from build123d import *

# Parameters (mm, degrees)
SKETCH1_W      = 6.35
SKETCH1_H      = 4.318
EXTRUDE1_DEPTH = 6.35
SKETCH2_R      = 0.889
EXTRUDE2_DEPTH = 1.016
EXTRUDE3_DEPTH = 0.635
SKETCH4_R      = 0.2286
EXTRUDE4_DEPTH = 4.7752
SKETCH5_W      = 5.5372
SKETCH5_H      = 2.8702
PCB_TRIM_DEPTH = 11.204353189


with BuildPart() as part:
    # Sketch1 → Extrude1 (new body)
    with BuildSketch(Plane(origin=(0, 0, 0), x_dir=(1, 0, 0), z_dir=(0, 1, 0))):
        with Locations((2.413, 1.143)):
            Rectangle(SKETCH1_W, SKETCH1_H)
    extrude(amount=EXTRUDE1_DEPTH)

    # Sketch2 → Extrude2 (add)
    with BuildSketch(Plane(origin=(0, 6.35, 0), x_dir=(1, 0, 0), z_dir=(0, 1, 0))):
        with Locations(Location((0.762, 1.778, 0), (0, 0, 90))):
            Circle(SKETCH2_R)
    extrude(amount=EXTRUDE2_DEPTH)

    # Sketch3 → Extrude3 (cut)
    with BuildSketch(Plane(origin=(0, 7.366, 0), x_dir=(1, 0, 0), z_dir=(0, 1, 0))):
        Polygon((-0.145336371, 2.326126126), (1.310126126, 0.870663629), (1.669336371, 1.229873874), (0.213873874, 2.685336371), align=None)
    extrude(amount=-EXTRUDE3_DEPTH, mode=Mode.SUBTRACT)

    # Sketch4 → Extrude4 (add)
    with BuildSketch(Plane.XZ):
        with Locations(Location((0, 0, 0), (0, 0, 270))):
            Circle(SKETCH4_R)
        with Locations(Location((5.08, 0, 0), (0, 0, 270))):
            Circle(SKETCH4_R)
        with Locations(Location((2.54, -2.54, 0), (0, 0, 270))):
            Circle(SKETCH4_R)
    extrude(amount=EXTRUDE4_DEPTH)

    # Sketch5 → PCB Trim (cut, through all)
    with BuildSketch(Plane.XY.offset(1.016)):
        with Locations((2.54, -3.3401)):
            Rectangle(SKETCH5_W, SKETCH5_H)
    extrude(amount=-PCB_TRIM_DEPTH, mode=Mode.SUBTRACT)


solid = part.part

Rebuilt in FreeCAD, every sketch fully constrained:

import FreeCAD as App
import Part
import Sketcher
from FreeCAD import Vector
Q = App.Units.Quantity


def add_polygon(sketch, points):
    """Adds a closed chain of lines whose ends are joined by coincident constraints."""
    first, n = sketch.GeometryCount, len(points)
    for a, b in zip(points, points[1:] + points[:1]):
        sketch.addGeometry(Part.LineSegment(App.Vector(*a, 0), App.Vector(*b, 0)), False)
    for i in range(n):
        sketch.addConstraint(Sketcher.Constraint("Coincident", first + i, 2, first + (i + 1) % n, 1))

doc = App.newDocument("Part")
body = doc.addObject("PartDesign::Body", "Body")

sketch1 = body.newObject("Sketcher::SketchObject", "Sketch")
sketch1.AttachmentSupport = (doc.getObject("XZ_Plane"), [""])
sketch1.MapMode = "FlatFace"
add_polygon(sketch1, [(-0.762, -3.302), (-0.762, 1.016), (5.588, 1.016), (5.588, -3.302)])
sketch1.addConstraint([
    Sketcher.Constraint("Vertical", 0),
    Sketcher.Constraint("Horizontal", 1),
    Sketcher.Constraint("Vertical", 2),
    Sketcher.Constraint("Horizontal", 3),
    Sketcher.Constraint("DistanceX", 1, 1, 1, 2, Q("0.25 in")),
    Sketcher.Constraint("DistanceY", 0, 1, 0, 2, Q("0.17 in")),
    Sketcher.Constraint("DistanceX", 0, 2, -1, 1, Q("0.03 in")),
    Sketcher.Constraint("DistanceY", -1, 1, 0, 2, Q("0.04 in")),
])
pad1 = body.newObject("PartDesign::Pad", "Pad")
pad1.Profile = sketch1
pad1.Length = Q("0.25 in")
pad1.Reversed = True

sketch2 = body.newObject("Sketcher::SketchObject", "Sketch001")
sketch2.AttachmentSupport = (doc.getObject("XZ_Plane"), [""])
sketch2.MapMode = "FlatFace"
sketch2.AttachmentOffset = App.Placement(Vector(0, 0, -0.25 * 25.4), App.Rotation())
sketch2.addGeometry(Part.Circle(Vector(0.762, -1.778, 0), Vector(0, 0, 1), 0.889), False)
sketch2.addConstraint([
    Sketcher.Constraint("Diameter", 0, Q("0.07 in")),
    Sketcher.Constraint("DistanceX", -1, 1, 0, 3, Q("0.03 in")),
    Sketcher.Constraint("DistanceY", 0, 3, -1, 1, Q("0.07 in")),
])
pad2 = body.newObject("PartDesign::Pad", "Pad001")
pad2.Profile = sketch2
pad2.Length = Q("0.04 in")
pad2.Reversed = True

sketch3 = body.newObject("Sketcher::SketchObject", "Sketch002")
sketch3.AttachmentSupport = (doc.getObject("XZ_Plane"), [""])
sketch3.MapMode = "FlatFace"
sketch3.AttachmentOffset = App.Placement(Vector(0, 0, -0.29 * 25.4), App.Rotation())
add_polygon(sketch3, [(-0.145336, -2.326126), (1.310126, -0.870664), (1.669336, -1.229874), (0.213874, -2.685336)])
sketch3.addConstraint([
    Sketcher.Constraint("Perpendicular", 0, 1),
    Sketcher.Constraint("Perpendicular", 1, 2),
    Sketcher.Constraint("Perpendicular", 2, 3),
    Sketcher.Constraint("Angle", 0, Q("45 deg")),
    Sketcher.Constraint("Distance", 1, Q("0.02 in")),
    Sketcher.Constraint("Distance", 0, 2.058335),
    Sketcher.Constraint("DistanceX", -1, 1, 0, 2, 1.310126),
    Sketcher.Constraint("DistanceY", 0, 2, -1, 1, 0.870664),
])
pocket1 = body.newObject("PartDesign::Pocket", "Pocket")
pocket1.Profile = sketch3
pocket1.Length = Q("0.025 in")
pocket1.Reversed = True

sketch4 = body.newObject("Sketcher::SketchObject", "Sketch003")
sketch4.AttachmentSupport = (doc.getObject("XZ_Plane"), [""])
sketch4.MapMode = "FlatFace"
sketch4.addGeometry([
    Part.Circle(Vector(0, 0, 0), Vector(0, 0, 1), 0.2286),
    Part.Circle(Vector(5.08, 0, 0), Vector(0, 0, 1), 0.2286),
    Part.Circle(Vector(2.54, -2.54, 0), Vector(0, 0, 1), 0.2286),
], False)
sketch4.addConstraint([
    Sketcher.Constraint("Coincident", 0, 3, -1, 1),
    Sketcher.Constraint("Equal", 0, 1),
    Sketcher.Constraint("Equal", 1, 2),
    Sketcher.Constraint("PointOnObject", 1, 3, -1),
    Sketcher.Constraint("Diameter", 0, Q("0.018 in")),
    Sketcher.Constraint("DistanceX", -1, 1, 1, 3, Q("0.2 in")),
    Sketcher.Constraint("DistanceX", -1, 1, 2, 3, Q("0.1 in")),
    Sketcher.Constraint("DistanceY", 2, 3, -1, 1, Q("0.1 in")),
])
pad3 = body.newObject("PartDesign::Pad", "Pad002")
pad3.Profile = sketch4
pad3.Length = Q("0.188 in")

sketch5 = body.newObject("Sketcher::SketchObject", "Sketch004")
sketch5.AttachmentSupport = (doc.getObject("XY_Plane"), [""])
sketch5.MapMode = "FlatFace"
sketch5.AttachmentOffset = App.Placement(Vector(0, 0, 0.04 * 25.4), App.Rotation())
add_polygon(sketch5, [(-0.2286, -1.905), (-0.2286, -4.7752), (5.3086, -4.7752), (5.3086, -1.905)])
sketch5.addConstraint([
    Sketcher.Constraint("Vertical", 0),
    Sketcher.Constraint("Horizontal", 1),
    Sketcher.Constraint("Vertical", 2),
    Sketcher.Constraint("Horizontal", 3),
    Sketcher.Constraint("DistanceX", 1, 1, 1, 2, Q("0.218 in")),
    Sketcher.Constraint("DistanceY", 0, 2, 0, 1, Q("0.113 in")),
    Sketcher.Constraint("DistanceX", 0, 2, -1, 1, Q("0.009 in")),
    Sketcher.Constraint("DistanceY", 0, 2, -1, 1, Q("0.188 in")),
])
pocket2 = body.newObject("PartDesign::Pocket", "Pocket001")
pocket2.Profile = sketch5
pocket2.Type = "ThroughAll"

doc.recompute()
